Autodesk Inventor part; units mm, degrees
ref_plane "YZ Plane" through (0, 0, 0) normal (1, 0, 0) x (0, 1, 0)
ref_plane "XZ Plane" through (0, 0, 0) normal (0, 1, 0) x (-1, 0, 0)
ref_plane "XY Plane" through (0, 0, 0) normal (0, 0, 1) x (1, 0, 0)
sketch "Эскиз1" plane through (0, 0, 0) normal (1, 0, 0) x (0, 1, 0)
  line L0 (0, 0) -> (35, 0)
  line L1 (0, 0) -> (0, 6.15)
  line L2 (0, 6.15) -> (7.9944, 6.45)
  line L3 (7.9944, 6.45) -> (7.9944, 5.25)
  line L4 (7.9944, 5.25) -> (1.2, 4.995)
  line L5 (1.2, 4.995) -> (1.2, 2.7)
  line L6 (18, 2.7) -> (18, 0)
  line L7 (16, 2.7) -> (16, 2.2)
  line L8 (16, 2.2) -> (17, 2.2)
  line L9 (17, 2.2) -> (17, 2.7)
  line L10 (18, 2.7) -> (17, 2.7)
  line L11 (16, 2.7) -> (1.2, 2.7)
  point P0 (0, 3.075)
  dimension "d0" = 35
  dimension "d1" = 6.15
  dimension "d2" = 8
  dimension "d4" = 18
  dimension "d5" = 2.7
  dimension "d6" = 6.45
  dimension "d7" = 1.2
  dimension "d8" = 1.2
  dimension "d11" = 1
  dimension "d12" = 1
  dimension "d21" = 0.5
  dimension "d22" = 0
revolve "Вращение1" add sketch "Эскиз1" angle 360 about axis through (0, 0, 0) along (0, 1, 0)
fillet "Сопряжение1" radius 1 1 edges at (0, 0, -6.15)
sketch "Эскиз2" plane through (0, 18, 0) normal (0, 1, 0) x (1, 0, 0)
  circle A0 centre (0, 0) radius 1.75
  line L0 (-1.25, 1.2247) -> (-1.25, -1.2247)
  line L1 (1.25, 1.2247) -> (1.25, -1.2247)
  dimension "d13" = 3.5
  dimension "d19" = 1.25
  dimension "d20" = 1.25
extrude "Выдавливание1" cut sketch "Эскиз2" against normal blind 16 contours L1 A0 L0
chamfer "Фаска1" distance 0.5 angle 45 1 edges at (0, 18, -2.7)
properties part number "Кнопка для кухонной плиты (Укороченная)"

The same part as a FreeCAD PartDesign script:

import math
import FreeCAD as App
import Part
import Sketcher
from FreeCAD import Vector
Q = App.Units.Quantity


def edges_at(feature, points):
    """Names of the edges that pass closest to the given points."""
    edges = feature.Shape.Edges
    near = lambda p: min(range(len(edges)), key=lambda i: edges[i].distToShape(Part.Vertex(*p))[0])
    return sorted({f"Edge{near(p) + 1}" for p in points})

doc = App.newDocument("Part")
body = doc.addObject("PartDesign::Body", "Body")

sketch1 = body.newObject("Sketcher::SketchObject", "Sketch")
sketch1.AttachmentSupport = (doc.getObject("YZ_Plane"), [""])
sketch1.MapMode = "FlatFace"
sketch1.addGeometry(Part.LineSegment(Vector(0, 6.15, 0), Vector(0, 0, 0)), False)
sketch1.addGeometry(Part.LineSegment(Vector(0, 0, 0), Vector(18, 0, 0)), False)
sketch1.addGeometry(Part.LineSegment(Vector(18, 0, 0), Vector(18, 2.7, 0)), False)
sketch1.addGeometry(Part.LineSegment(Vector(18, 2.7, 0), Vector(17, 2.7, 0)), False)
sketch1.addGeometry(Part.LineSegment(Vector(17, 2.7, 0), Vector(17, 2.2, 0)), False)
sketch1.addGeometry(Part.LineSegment(Vector(17, 2.2, 0), Vector(16, 2.2, 0)), False)
sketch1.addGeometry(Part.LineSegment(Vector(16, 2.2, 0), Vector(16, 2.7, 0)), False)
sketch1.addGeometry(Part.LineSegment(Vector(16, 2.7, 0), Vector(1.2, 2.7, 0)), False)
sketch1.addGeometry(Part.LineSegment(Vector(1.2, 2.7, 0), Vector(1.2, 4.995, 0)), False)
sketch1.addGeometry(Part.LineSegment(Vector(1.2, 4.995, 0), Vector(7.9944, 5.25, 0)), False)
sketch1.addGeometry(Part.LineSegment(Vector(7.9944, 5.25, 0), Vector(7.9944, 6.45, 0)), False)
sketch1.addGeometry(Part.LineSegment(Vector(7.9944, 6.45, 0), Vector(0, 6.15, 0)), False)
sketch1.addConstraint(Sketcher.Constraint("Coincident", 0, 2, 1, 1))
sketch1.addConstraint(Sketcher.Constraint("Coincident", 1, 2, 2, 1))
sketch1.addConstraint(Sketcher.Constraint("Coincident", 2, 2, 3, 1))
sketch1.addConstraint(Sketcher.Constraint("Coincident", 3, 2, 4, 1))
sketch1.addConstraint(Sketcher.Constraint("Coincident", 4, 2, 5, 1))
sketch1.addConstraint(Sketcher.Constraint("Coincident", 5, 2, 6, 1))
sketch1.addConstraint(Sketcher.Constraint("Coincident", 6, 2, 7, 1))
sketch1.addConstraint(Sketcher.Constraint("Coincident", 7, 2, 8, 1))
sketch1.addConstraint(Sketcher.Constraint("Coincident", 8, 2, 9, 1))
sketch1.addConstraint(Sketcher.Constraint("Coincident", 9, 2, 10, 1))
sketch1.addConstraint(Sketcher.Constraint("Coincident", 10, 2, 11, 1))
sketch1.addConstraint(Sketcher.Constraint("Coincident", 11, 2, 0, 1))
sketch1.addConstraint(Sketcher.Constraint("Vertical", 0))
sketch1.addConstraint(Sketcher.Constraint("Horizontal", 1))
sketch1.addConstraint(Sketcher.Constraint("Vertical", 2))
sketch1.addConstraint(Sketcher.Constraint("Horizontal", 3))
sketch1.addConstraint(Sketcher.Constraint("Vertical", 4))
sketch1.addConstraint(Sketcher.Constraint("Horizontal", 5))
sketch1.addConstraint(Sketcher.Constraint("Vertical", 6))
sketch1.addConstraint(Sketcher.Constraint("Horizontal", 7))
sketch1.addConstraint(Sketcher.Constraint("Vertical", 8))
sketch1.addConstraint(Sketcher.Constraint("Vertical", 10))
sketch1.addConstraint(Sketcher.Constraint("Coincident", 0, 2, -1, 1))
sketch1.addConstraint(Sketcher.Constraint("Parallel", 9, 11))
sketch1.addConstraint(Sketcher.Constraint("Horizontal", 3, 2, 6, 2))
sketch1.addConstraint(Sketcher.Constraint("Equal", 3, 5))
sketch1.addConstraint(Sketcher.Constraint("DistanceX", 1, 1, 1, 2, Q("18 mm")))
sketch1.addConstraint(Sketcher.Constraint("DistanceX", 3, 2, 3, 1, Q("1 mm")))
sketch1.addConstraint(Sketcher.Constraint("Distance", 11, Q("8 mm")))
sketch1.addConstraint(Sketcher.Constraint("DistanceY", 2, 1, 2, 2, Q("2.7 mm")))
sketch1.addConstraint(Sketcher.Constraint("DistanceY", 4, 2, 4, 1, Q("0.5 mm")))
sketch1.addConstraint(Sketcher.Constraint("DistanceY", 10, 1, 10, 2, Q("1.2 mm")))
sketch1.addConstraint(Sketcher.Constraint("DistanceY", 0, 2, 0, 1, Q("6.15 mm")))
sketch1.addConstraint(Sketcher.Constraint("DistanceX", -1, 1, 7, 2, Q("1.2 mm")))
sketch1.addConstraint(Sketcher.Constraint("DistanceY", -1, 1, 10, 2, Q("6.45 mm")))
revolution = body.newObject("PartDesign::Revolution", "Revolution")
revolution.Profile = sketch1
revolution.ReferenceAxis = (sketch1, ["H_Axis"])
revolution.Angle = 360
doc.recompute()

fillet = body.newObject("PartDesign::Fillet", "Fillet")
fillet.Base = (revolution, edges_at(revolution, [(0, 0, -6.15)]))
fillet.Radius = 1

sketch2 = body.newObject("Sketcher::SketchObject", "Sketch001")
sketch2.AttachmentSupport = (doc.getObject("XZ_Plane"), [""])
sketch2.MapMode = "FlatFace"
sketch2.AttachmentOffset = App.Placement(Vector(0, 0, -18), App.Rotation())
sketch2.addGeometry(Part.LineSegment(Vector(1.25, 1.2247, 0), Vector(1.25, -1.2247, 0)), False)
sketch2.addGeometry(Part.ArcOfCircle(Part.Circle(Vector(0, 0, 0), Vector(0, 0, 1), 1.75), math.radians(-135.585741), math.radians(-44.414259)), False)
sketch2.addGeometry(Part.LineSegment(Vector(-1.25, -1.2247, 0), Vector(-1.25, 1.2247, 0)), False)
sketch2.addGeometry(Part.ArcOfCircle(Part.Circle(Vector(0, 0, 0), Vector(0, 0, 1), 1.75), math.radians(44.414259), math.radians(135.585741)), False)
sketch2.addConstraint(Sketcher.Constraint("Coincident", 0, 2, 1, 2))
sketch2.addConstraint(Sketcher.Constraint("Coincident", 1, 1, 2, 1))
sketch2.addConstraint(Sketcher.Constraint("Coincident", 2, 2, 3, 2))
sketch2.addConstraint(Sketcher.Constraint("Coincident", 3, 1, 0, 1))
sketch2.addConstraint(Sketcher.Constraint("Vertical", 0))
sketch2.addConstraint(Sketcher.Constraint("Vertical", 2))
sketch2.addConstraint(Sketcher.Constraint("Coincident", 1, 3, -1, 1))
sketch2.addConstraint(Sketcher.Constraint("Coincident", 3, 3, -1, 1))
sketch2.addConstraint(Sketcher.Constraint("Equal", 1, 3))
sketch2.addConstraint(Sketcher.Constraint("Horizontal", 0, 2, 1, 1))
sketch2.addConstraint(Sketcher.Constraint("Radius", 1, Q("1.75 mm")))
sketch2.addConstraint(Sketcher.Constraint("DistanceX", -1, 1, 0, 2, Q("1.25 mm")))
pocket1 = body.newObject("PartDesign::Pocket", "Pocket")
pocket1.Profile = sketch2
pocket1.Length = 16
pocket1.Reversed = True
doc.recompute()

chamfer = body.newObject("PartDesign::Chamfer", "Chamfer")
chamfer.Base = (pocket1, edges_at(pocket1, [(0, 18, -2.7)]))
chamfer.Size = 0.5

doc.recompute()
